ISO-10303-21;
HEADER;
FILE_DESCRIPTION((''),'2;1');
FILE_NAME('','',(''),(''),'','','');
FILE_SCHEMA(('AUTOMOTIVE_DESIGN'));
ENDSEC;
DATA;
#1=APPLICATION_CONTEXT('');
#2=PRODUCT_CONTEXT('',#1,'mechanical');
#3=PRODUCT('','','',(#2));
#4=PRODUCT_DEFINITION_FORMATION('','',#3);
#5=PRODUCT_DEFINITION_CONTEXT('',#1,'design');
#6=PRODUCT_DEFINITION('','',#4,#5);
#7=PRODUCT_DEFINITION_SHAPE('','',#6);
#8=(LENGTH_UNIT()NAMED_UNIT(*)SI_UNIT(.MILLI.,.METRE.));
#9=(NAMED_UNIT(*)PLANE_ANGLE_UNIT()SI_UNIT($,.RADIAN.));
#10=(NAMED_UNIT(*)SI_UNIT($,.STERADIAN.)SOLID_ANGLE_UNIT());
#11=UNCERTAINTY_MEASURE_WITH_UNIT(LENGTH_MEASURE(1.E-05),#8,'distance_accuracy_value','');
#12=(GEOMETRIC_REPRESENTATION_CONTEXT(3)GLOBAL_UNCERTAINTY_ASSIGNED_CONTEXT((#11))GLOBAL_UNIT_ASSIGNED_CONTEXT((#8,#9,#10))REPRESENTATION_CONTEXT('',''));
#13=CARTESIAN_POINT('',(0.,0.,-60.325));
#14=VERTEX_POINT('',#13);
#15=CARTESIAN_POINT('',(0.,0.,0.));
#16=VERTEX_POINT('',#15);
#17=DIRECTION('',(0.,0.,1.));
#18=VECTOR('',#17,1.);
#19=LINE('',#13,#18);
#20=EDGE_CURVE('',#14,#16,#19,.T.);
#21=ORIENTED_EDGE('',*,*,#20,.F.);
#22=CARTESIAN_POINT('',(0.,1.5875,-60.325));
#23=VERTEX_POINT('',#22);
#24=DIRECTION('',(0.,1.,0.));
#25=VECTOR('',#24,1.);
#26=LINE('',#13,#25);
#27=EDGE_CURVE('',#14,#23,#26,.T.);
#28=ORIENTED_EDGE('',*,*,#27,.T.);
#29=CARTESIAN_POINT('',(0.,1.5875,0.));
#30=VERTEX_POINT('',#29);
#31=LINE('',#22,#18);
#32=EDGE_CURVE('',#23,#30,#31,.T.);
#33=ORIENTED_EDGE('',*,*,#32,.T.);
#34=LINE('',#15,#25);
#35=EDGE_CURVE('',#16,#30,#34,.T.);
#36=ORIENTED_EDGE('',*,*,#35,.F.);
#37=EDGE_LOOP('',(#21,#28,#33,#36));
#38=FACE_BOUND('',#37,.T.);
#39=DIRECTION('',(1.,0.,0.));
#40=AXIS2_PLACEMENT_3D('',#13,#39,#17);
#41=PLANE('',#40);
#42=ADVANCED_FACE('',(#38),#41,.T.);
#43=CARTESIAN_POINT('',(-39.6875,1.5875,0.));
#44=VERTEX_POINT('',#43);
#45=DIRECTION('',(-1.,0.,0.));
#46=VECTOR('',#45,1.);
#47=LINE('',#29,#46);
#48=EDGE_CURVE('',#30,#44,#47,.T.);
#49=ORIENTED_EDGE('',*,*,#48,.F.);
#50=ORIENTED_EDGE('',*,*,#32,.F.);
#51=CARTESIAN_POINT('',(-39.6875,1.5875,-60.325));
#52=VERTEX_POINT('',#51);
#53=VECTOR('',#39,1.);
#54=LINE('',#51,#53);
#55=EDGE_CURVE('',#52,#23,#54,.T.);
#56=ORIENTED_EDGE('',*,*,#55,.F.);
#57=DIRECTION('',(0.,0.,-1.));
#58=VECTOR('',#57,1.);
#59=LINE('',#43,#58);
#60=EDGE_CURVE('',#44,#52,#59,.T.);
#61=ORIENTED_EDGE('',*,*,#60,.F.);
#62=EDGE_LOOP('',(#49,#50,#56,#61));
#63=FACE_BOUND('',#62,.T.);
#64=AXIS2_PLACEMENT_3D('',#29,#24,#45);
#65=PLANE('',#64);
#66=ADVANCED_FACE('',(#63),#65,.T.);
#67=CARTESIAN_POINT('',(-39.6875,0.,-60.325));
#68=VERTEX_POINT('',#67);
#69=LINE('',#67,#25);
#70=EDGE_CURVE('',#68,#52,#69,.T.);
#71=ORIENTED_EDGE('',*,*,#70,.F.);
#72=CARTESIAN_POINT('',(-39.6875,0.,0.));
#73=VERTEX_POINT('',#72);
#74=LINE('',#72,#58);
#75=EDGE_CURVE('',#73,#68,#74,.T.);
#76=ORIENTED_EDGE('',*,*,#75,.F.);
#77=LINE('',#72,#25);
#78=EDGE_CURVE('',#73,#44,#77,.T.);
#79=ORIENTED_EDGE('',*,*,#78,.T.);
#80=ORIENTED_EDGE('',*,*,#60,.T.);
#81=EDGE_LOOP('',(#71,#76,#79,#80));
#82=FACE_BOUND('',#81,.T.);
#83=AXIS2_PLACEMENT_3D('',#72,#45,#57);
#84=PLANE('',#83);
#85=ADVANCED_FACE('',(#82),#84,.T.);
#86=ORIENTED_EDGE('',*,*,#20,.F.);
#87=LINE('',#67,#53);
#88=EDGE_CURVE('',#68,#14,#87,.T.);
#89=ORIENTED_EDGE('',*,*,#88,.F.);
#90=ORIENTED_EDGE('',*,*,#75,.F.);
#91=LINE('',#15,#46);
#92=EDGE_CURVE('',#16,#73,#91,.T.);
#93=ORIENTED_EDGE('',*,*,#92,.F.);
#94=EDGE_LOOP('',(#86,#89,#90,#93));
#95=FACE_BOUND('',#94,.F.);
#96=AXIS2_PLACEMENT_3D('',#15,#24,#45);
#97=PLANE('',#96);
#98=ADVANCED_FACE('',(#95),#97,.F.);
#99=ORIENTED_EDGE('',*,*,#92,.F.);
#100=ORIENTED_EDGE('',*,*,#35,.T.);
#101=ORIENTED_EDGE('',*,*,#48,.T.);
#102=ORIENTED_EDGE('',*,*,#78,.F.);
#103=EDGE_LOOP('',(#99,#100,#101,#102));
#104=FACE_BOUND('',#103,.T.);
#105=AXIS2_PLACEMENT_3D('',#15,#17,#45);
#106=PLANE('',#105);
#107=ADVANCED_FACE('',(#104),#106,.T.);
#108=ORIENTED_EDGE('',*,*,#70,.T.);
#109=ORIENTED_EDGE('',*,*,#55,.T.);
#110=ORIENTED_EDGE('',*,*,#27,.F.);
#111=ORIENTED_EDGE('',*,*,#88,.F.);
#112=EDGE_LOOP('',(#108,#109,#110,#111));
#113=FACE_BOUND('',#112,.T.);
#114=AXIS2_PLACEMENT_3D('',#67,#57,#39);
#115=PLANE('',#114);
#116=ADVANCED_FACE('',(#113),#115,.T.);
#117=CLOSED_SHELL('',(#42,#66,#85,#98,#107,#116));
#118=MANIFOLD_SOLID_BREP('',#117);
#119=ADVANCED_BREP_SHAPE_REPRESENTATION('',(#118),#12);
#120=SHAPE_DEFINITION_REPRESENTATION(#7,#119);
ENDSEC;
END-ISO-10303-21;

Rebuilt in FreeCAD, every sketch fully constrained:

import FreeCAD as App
import Part
import Sketcher

V = App.Vector
Q = App.Units.Quantity


def add_polygon(sketch, points):
    """Adds a closed chain of lines whose ends are joined by coincident constraints."""
    first, n = sketch.GeometryCount, len(points)
    for a, b in zip(points, points[1:] + points[:1]):
        sketch.addGeometry(Part.LineSegment(App.Vector(*a, 0), App.Vector(*b, 0)), False)
    for i in range(n):
        sketch.addConstraint(Sketcher.Constraint("Coincident", first + i, 2, first + (i + 1) % n, 1))

doc = App.newDocument("Part")
body = doc.addObject("PartDesign::Body", "Body")

# Sketch on XZ plane
sketch1 = doc.addObject("Sketcher::SketchObject", "Sketch")
body.addObject(sketch1)
sketch1.AttachmentSupport = (doc.XZ_Plane, [""])
sketch1.MapMode = "FlatFace"
add_polygon(sketch1, [(-40, 0), (0, 0), (0, -60), (-40, -60)])  # lines 0-3
sketch1.addConstraint([
    Sketcher.Constraint("Horizontal", 0),
    Sketcher.Constraint("Vertical", 1),
    Sketcher.Constraint("Horizontal", 2),
    Sketcher.Constraint("Vertical", 3),
    Sketcher.Constraint("Coincident", 0, 2, -1, 1),
    Sketcher.Constraint("DistanceX", 0, 1, 0, 2, Q("1.5625 in")),
    Sketcher.Constraint("DistanceY", 1, 2, 1, 1, Q("2.375 in")),
])
pad1 = doc.addObject("PartDesign::Pad", "Pad")
body.addObject(pad1)
pad1.Profile = sketch1
pad1.Length = Q("0.0625 in")
pad1.Reversed = True

doc.recompute()
